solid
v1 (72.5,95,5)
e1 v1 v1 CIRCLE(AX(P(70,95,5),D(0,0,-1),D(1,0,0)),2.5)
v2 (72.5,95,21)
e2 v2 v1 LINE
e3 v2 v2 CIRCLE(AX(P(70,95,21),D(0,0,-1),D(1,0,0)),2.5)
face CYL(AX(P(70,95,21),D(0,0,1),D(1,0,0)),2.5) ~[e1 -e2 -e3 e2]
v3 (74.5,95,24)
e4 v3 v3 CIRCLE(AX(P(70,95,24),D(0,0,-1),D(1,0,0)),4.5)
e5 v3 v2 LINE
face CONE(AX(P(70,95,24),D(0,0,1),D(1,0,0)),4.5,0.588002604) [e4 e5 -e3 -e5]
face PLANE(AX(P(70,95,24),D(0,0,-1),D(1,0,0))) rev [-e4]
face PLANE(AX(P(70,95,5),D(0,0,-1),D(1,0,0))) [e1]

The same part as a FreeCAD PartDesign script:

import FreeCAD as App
import Part
import Sketcher

V = App.Vector
Q = App.Units.Quantity


def add_polygon(sketch, points):
    """Adds a closed chain of lines whose ends are joined by coincident constraints."""
    first, n = sketch.GeometryCount, len(points)
    for a, b in zip(points, points[1:] + points[:1]):
        sketch.addGeometry(Part.LineSegment(App.Vector(*a, 0), App.Vector(*b, 0)), False)
    for i in range(n):
        sketch.addConstraint(Sketcher.Constraint("Coincident", first + i, 2, first + (i + 1) % n, 1))

doc = App.newDocument("Part")
params = doc.addObject("Spreadsheet::Sheet", "Params")
for row, (alias, value) in enumerate([
    ("sketch1_height", "3 mm"),
    ("sketch1_width", "4.5 mm"),
    ("sketch1_width2", "2.5 mm"),
    ("revolution_angle", "360 deg"),
    ("sketch2_diameter", "5 mm"),
    ("pad1_length", "16 mm"),
], start=1):
    params.set(f"A{row}", alias)
    params.set(f"B{row}", "=" + value)
    params.setAlias(f"B{row}", alias)

body = doc.addObject("PartDesign::Body", "Body")

sketch1 = body.newObject("Sketcher::SketchObject", "Sketch")
sketch1.AttachmentSupport = (doc.getObject("XZ_Plane"), [""])
sketch1.MapMode = "FlatFace"
add_polygon(sketch1, [(0, -3), (4.5, -3), (2.5, 0), (0, 0)])
sketch1.addConstraint([
    Sketcher.Constraint("Horizontal", 0),
    Sketcher.Constraint("Horizontal", 2),
    Sketcher.Constraint("Vertical", 3),
    Sketcher.Constraint("Coincident", 2, 2, -1, 1),
    Sketcher.Constraint("DistanceY", 3, 2, 3, 1, Q("3 mm")),
    Sketcher.Constraint("DistanceX", 0, 1, 0, 2, Q("4.5 mm")),
    Sketcher.Constraint("DistanceX", 2, 2, 2, 1, Q("2.5 mm")),
])
sketch1.setExpression("Constraints[8]", "Params.sketch1_height")
sketch1.setExpression("Constraints[9]", "Params.sketch1_width")
sketch1.setExpression("Constraints[10]", "Params.sketch1_width2")
revolution = body.newObject("PartDesign::Revolution", "Revolution")
revolution.Profile = sketch1
revolution.ReferenceAxis = (sketch1, ["V_Axis"])
revolution.setExpression("Angle", "Params.revolution_angle")
body2 = doc.addObject("PartDesign::Body", "Body001")

sketch2 = body2.newObject("Sketcher::SketchObject", "Sketch001")
sketch2.AttachmentSupport = (doc.getObject("XY_Plane001"), [""])
sketch2.MapMode = "FlatFace"
sketch2.addGeometry(Part.Circle(V(0, 0, 0), V(0, 0, 1), 2.5), False)
sketch2.addConstraint([
    Sketcher.Constraint("Coincident", 0, 3, -1, 1),
    Sketcher.Constraint("Diameter", 0, Q("5 mm")),
])
sketch2.setExpression("Constraints[1]", "Params.sketch2_diameter")
pad1 = body2.newObject("PartDesign::Pad", "Pad")
pad1.Profile = sketch2
pad1.setExpression("Length", "Params.pad1_length")
doc.recompute()

boolean = body2.newObject("PartDesign::Boolean", "Boolean")
boolean.Type = "Fuse"
boolean.addObjects([body])
body3 = doc.addObject("PartDesign::Body", "Body002")
doc.recompute()

body2.Placement = App.Placement(V(45, 15, 21), App.Rotation(V(0, 1, 0), 180))
boolean2 = body3.newObject("PartDesign::Boolean", "Boolean001")
boolean2.Type = "Fuse"
boolean2.addObjects([body2])
body4 = doc.addObject("PartDesign::Body", "Body003")
doc.recompute()

body3.Placement = App.Placement(V(115, 110, 0), App.Rotation(V(0, 0, 1), 180))
boolean3 = body4.newObject("PartDesign::Boolean", "Boolean002")
boolean3.Type = "Fuse"
boolean3.addObjects([body3])

doc.recompute()
